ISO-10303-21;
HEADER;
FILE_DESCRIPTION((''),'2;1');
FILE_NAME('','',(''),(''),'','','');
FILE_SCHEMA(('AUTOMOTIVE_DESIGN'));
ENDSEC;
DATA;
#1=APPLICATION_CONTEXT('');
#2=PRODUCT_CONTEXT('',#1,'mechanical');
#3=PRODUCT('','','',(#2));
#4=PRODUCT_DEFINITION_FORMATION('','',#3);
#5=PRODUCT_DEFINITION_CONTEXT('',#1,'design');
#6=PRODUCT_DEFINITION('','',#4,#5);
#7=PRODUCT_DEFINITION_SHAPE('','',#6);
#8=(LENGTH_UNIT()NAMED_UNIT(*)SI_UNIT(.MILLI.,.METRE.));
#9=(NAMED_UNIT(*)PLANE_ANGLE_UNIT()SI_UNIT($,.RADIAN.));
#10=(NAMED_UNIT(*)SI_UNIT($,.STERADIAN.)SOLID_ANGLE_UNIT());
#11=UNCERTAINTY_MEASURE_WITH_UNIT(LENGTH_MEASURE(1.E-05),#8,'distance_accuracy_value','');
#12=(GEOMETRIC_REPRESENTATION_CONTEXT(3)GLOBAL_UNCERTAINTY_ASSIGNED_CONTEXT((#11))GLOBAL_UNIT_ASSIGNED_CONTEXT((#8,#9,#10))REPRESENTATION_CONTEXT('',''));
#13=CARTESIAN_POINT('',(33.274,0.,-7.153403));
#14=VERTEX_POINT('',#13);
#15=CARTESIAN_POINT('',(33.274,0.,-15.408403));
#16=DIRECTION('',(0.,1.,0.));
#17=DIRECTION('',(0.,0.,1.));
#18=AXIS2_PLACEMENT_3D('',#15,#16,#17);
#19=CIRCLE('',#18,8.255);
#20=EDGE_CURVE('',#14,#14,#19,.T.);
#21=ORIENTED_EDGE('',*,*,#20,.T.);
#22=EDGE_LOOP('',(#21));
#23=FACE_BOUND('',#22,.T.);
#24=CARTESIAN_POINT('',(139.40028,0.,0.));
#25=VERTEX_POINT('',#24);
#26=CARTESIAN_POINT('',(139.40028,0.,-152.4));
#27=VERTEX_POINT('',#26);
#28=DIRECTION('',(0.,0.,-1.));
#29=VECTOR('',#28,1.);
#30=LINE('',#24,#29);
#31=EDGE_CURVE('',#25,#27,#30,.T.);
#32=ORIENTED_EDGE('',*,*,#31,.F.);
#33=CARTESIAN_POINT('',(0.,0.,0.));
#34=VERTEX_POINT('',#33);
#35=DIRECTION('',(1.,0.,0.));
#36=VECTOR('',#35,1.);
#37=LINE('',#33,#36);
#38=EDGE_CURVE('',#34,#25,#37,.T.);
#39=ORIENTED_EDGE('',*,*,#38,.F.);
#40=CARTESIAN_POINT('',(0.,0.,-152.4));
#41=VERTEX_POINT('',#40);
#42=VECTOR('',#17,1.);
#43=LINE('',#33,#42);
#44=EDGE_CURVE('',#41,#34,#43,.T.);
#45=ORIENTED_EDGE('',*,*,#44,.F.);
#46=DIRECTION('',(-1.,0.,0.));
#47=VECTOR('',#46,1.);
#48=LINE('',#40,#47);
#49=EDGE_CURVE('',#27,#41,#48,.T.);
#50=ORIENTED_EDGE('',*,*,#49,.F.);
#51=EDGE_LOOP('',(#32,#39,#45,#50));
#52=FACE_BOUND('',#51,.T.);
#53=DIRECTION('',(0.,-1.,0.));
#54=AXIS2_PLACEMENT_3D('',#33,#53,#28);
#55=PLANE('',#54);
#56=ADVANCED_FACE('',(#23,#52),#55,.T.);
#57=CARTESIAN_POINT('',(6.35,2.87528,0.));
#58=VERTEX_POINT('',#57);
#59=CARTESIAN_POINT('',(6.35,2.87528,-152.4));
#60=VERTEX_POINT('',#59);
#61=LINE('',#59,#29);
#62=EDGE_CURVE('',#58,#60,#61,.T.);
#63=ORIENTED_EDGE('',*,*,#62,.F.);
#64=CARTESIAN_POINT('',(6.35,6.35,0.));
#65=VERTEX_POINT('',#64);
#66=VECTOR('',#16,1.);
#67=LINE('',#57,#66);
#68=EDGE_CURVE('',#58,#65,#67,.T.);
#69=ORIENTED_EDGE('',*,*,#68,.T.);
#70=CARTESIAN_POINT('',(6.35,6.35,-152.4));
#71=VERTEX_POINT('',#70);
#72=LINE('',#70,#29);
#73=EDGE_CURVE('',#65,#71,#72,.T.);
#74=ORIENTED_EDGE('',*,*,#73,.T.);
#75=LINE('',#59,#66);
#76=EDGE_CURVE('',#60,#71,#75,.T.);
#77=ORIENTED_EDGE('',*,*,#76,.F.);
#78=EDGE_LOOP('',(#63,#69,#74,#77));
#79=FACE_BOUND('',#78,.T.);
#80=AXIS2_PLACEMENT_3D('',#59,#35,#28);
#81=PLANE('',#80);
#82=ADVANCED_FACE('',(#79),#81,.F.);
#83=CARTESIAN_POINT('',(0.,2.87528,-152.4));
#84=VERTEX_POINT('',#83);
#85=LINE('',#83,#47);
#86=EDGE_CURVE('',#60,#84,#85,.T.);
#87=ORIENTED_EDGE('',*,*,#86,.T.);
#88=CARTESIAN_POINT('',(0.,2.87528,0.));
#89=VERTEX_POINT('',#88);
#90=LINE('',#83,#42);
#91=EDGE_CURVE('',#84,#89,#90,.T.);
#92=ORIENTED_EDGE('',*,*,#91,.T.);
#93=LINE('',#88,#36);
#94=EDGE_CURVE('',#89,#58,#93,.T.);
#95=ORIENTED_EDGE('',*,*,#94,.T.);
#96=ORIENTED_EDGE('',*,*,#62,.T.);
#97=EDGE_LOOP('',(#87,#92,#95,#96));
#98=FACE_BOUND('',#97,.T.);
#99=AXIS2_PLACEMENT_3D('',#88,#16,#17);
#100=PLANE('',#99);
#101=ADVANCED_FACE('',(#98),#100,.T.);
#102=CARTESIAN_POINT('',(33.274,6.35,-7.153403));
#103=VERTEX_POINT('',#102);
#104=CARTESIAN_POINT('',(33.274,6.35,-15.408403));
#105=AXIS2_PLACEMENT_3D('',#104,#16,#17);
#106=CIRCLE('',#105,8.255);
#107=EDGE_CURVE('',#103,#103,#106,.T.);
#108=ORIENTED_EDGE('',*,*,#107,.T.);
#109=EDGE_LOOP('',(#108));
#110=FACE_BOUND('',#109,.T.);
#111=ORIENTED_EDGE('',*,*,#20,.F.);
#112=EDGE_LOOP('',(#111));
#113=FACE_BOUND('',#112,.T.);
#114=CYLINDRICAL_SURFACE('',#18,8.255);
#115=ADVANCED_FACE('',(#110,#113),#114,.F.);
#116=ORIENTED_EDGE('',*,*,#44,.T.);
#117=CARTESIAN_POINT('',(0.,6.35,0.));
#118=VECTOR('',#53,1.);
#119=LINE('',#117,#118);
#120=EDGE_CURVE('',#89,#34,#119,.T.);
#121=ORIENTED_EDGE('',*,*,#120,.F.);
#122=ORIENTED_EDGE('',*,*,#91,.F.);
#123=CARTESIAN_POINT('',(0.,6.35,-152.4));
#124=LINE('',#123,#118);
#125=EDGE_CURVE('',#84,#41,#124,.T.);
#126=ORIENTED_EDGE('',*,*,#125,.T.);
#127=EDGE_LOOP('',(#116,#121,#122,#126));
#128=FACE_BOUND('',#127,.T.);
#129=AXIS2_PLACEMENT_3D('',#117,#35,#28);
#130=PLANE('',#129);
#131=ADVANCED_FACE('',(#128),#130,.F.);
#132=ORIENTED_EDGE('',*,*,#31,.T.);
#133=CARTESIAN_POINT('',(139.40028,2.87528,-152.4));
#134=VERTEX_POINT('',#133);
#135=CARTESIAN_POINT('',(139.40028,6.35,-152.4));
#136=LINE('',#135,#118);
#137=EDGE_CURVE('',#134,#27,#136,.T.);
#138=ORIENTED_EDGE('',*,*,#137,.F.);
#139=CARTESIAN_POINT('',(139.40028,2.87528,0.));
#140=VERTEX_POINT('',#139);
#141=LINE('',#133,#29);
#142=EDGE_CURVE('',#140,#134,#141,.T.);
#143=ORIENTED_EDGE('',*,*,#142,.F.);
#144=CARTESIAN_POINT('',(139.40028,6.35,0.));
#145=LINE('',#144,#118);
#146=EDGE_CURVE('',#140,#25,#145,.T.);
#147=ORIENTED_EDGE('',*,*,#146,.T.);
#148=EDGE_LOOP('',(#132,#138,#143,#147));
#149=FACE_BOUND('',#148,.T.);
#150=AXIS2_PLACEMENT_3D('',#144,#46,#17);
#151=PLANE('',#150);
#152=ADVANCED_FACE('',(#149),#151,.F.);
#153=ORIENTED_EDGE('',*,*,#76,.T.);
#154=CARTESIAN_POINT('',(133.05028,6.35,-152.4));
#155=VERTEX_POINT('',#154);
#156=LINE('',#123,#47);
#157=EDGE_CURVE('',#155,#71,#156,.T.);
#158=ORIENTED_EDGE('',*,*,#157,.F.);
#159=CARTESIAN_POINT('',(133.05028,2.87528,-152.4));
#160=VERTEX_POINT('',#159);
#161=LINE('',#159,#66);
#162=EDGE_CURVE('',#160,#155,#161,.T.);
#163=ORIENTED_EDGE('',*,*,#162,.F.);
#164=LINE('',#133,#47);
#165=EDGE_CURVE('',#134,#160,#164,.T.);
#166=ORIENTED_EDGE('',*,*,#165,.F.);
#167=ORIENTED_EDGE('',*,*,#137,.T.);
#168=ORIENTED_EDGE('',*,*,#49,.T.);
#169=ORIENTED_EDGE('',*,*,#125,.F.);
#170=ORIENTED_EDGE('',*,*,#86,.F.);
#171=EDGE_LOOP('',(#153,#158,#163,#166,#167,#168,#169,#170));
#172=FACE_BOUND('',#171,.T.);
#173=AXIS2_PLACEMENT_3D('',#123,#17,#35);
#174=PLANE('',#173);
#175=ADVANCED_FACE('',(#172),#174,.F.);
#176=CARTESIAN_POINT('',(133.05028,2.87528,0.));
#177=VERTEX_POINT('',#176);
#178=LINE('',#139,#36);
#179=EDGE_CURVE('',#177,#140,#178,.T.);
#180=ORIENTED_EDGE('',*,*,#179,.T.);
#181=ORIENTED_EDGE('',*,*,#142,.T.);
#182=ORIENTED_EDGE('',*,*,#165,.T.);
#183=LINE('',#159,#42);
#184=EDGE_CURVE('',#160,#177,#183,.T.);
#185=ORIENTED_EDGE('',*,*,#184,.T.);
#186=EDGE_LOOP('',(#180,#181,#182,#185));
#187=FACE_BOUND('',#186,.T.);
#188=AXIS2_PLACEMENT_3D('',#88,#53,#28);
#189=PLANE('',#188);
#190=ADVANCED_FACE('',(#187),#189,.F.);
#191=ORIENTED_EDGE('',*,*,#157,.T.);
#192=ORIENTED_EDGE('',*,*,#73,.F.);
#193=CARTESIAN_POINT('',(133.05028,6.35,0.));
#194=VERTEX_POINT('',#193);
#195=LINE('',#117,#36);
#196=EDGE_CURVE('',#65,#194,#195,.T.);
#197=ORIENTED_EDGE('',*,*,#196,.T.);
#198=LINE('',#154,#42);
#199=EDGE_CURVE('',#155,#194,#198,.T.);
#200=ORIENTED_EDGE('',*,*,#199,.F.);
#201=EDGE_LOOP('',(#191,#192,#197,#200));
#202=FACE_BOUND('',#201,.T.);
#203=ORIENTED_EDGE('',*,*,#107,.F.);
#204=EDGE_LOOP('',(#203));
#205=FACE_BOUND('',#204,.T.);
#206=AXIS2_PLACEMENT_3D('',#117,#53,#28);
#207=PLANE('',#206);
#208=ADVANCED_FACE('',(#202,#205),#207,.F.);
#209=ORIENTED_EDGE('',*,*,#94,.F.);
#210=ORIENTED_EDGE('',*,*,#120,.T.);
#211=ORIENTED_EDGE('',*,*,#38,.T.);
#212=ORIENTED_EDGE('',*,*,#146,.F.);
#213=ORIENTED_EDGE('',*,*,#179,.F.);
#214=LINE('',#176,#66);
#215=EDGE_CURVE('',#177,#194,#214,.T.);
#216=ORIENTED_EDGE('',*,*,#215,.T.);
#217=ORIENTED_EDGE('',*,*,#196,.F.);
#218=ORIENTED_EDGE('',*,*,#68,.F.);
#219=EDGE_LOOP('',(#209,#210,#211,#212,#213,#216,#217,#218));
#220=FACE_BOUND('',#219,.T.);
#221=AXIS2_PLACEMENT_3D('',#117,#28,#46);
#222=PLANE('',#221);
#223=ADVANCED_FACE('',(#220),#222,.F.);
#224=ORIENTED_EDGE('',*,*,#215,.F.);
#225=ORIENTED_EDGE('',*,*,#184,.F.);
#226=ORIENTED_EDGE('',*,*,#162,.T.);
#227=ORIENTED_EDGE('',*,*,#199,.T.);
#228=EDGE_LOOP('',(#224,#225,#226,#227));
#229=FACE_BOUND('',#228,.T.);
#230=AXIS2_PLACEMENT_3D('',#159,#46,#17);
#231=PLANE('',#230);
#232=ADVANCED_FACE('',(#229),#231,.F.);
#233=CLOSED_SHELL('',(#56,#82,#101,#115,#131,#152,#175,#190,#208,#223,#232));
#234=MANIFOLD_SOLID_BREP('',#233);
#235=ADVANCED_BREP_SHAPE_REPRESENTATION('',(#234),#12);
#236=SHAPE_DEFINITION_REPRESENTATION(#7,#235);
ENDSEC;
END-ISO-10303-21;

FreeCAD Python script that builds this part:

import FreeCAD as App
import Part
import Sketcher

V = App.Vector
Q = App.Units.Quantity

doc = App.newDocument("Part")
body = doc.addObject("PartDesign::Body", "Body")

sketch1 = body.newObject("Sketcher::SketchObject", "Sketch")
sketch1.AttachmentSupport = (doc.getObject("XZ_Plane"), [""])
sketch1.MapMode = "FlatFace"
sketch1.addGeometry(Part.LineSegment(V(0, -152, 0), V(0, 0, 0)), False)
sketch1.addGeometry(Part.LineSegment(V(0, 0, 0), V(139, 0, 0)), False)
sketch1.addGeometry(Part.LineSegment(V(139, 0, 0), V(139, -152, 0)), False)
sketch1.addGeometry(Part.LineSegment(V(139, -152, 0), V(0, -152, 0)), False)
sketch1.addConstraint(Sketcher.Constraint("Coincident", 0, 2, 1, 1))
sketch1.addConstraint(Sketcher.Constraint("Coincident", 1, 2, 2, 1))
sketch1.addConstraint(Sketcher.Constraint("Coincident", 2, 2, 3, 1))
sketch1.addConstraint(Sketcher.Constraint("Coincident", 3, 2, 0, 1))
sketch1.addConstraint(Sketcher.Constraint("Vertical", 0))
sketch1.addConstraint(Sketcher.Constraint("Horizontal", 1))
sketch1.addConstraint(Sketcher.Constraint("Vertical", 2))
sketch1.addConstraint(Sketcher.Constraint("Horizontal", 3))
sketch1.addConstraint(Sketcher.Constraint("Coincident", 0, 2, -1, 1))
sketch1.addConstraint(Sketcher.Constraint("DistanceY", 0, 1, 0, 2, Q("6 in")))
sketch1.addConstraint(Sketcher.Constraint("DistanceX", 1, 1, 1, 2, Q("5.4882 in")))
pad1 = body.newObject("PartDesign::Pad", "Pad")
pad1.Profile = sketch1
pad1.Length = Q("0.25 in")
pad1.Reversed = True

sketch2 = body.newObject("Sketcher::SketchObject", "Sketch001")
sketch2.AttachmentSupport = (doc.getObject("XZ_Plane"), [""])
sketch2.MapMode = "FlatFace"
sketch2.AttachmentOffset = App.Placement(V(0, 0, -0.25 * 25.4), App.Rotation())
sketch2.addGeometry(Part.LineSegment(V(0, -152, 0), V(0, 0, 0)), False)
sketch2.addGeometry(Part.LineSegment(V(0, 0, 0), V(6, 0, 0)), False)
sketch2.addGeometry(Part.LineSegment(V(6, 0, 0), V(6, -152, 0)), False)
sketch2.addGeometry(Part.LineSegment(V(6, -152, 0), V(0, -152, 0)), False)
sketch2.addGeometry(Part.LineSegment(V(133, -152, 0), V(133, 0, 0)), False)
sketch2.addGeometry(Part.LineSegment(V(133, 0, 0), V(139, 0, 0)), False)
sketch2.addGeometry(Part.LineSegment(V(139, 0, 0), V(139, -152, 0)), False)
sketch2.addGeometry(Part.LineSegment(V(139, -152, 0), V(133, -152, 0)), False)
sketch2.addConstraint(Sketcher.Constraint("Coincident", 0, 2, 1, 1))
sketch2.addConstraint(Sketcher.Constraint("Coincident", 1, 2, 2, 1))
sketch2.addConstraint(Sketcher.Constraint("Coincident", 2, 2, 3, 1))
sketch2.addConstraint(Sketcher.Constraint("Coincident", 3, 2, 0, 1))
sketch2.addConstraint(Sketcher.Constraint("Coincident", 4, 2, 5, 1))
sketch2.addConstraint(Sketcher.Constraint("Coincident", 5, 2, 6, 1))
sketch2.addConstraint(Sketcher.Constraint("Coincident", 6, 2, 7, 1))
sketch2.addConstraint(Sketcher.Constraint("Coincident", 7, 2, 4, 1))
sketch2.addConstraint(Sketcher.Constraint("Vertical", 0))
sketch2.addConstraint(Sketcher.Constraint("Horizontal", 1))
sketch2.addConstraint(Sketcher.Constraint("Vertical", 2))
sketch2.addConstraint(Sketcher.Constraint("Horizontal", 3))
sketch2.addConstraint(Sketcher.Constraint("Vertical", 4))
sketch2.addConstraint(Sketcher.Constraint("Horizontal", 5))
sketch2.addConstraint(Sketcher.Constraint("Vertical", 6))
sketch2.addConstraint(Sketcher.Constraint("Horizontal", 7))
sketch2.addConstraint(Sketcher.Constraint("Coincident", 0, 2, -1, 1))
sketch2.addConstraint(Sketcher.Constraint("PointOnObject", 4, 2, -1))
sketch2.addConstraint(Sketcher.Constraint("Horizontal", 3, 2, 6, 2))
sketch2.addConstraint(Sketcher.Constraint("Equal", 3, 5))
sketch2.addConstraint(Sketcher.Constraint("DistanceY", 0, 1, 0, 2, Q("6 in")))
sketch2.addConstraint(Sketcher.Constraint("DistanceX", 1, 1, 1, 2, Q("0.25 in")))
sketch2.addConstraint(Sketcher.Constraint("DistanceX", -1, 1, 4, 2, Q("5.2382 in")))
pocket1 = body.newObject("PartDesign::Pocket", "Pocket")
pocket1.Profile = sketch2
pocket1.Length = Q("0.1368 in")
pocket1.Reversed = True

sketch3 = body.newObject("Sketcher::SketchObject", "Sketch002")
sketch3.AttachmentSupport = (doc.getObject("XZ_Plane"), [""])
sketch3.MapMode = "FlatFace"
sketch3.AttachmentOffset = App.Placement(V(0, 0, -0.25 * 25.4), App.Rotation())
sketch3.addGeometry(Part.Circle(V(33, -15, 0), V(0, 0, 1), 8), False)
sketch3.addConstraint(Sketcher.Constraint("Diameter", 0, Q("0.65 in")))
sketch3.addConstraint(Sketcher.Constraint("DistanceX", -1, 1, 0, 3, Q("1.31 in")))
sketch3.addConstraint(Sketcher.Constraint("DistanceY", 0, 3, -1, 1, Q("15.408403 mm")))
pocket2 = body.newObject("PartDesign::Pocket", "Pocket001")
pocket2.Profile = sketch3
pocket2.Type = "ThroughAll"
pocket2.Reversed = True

doc.recompute()
